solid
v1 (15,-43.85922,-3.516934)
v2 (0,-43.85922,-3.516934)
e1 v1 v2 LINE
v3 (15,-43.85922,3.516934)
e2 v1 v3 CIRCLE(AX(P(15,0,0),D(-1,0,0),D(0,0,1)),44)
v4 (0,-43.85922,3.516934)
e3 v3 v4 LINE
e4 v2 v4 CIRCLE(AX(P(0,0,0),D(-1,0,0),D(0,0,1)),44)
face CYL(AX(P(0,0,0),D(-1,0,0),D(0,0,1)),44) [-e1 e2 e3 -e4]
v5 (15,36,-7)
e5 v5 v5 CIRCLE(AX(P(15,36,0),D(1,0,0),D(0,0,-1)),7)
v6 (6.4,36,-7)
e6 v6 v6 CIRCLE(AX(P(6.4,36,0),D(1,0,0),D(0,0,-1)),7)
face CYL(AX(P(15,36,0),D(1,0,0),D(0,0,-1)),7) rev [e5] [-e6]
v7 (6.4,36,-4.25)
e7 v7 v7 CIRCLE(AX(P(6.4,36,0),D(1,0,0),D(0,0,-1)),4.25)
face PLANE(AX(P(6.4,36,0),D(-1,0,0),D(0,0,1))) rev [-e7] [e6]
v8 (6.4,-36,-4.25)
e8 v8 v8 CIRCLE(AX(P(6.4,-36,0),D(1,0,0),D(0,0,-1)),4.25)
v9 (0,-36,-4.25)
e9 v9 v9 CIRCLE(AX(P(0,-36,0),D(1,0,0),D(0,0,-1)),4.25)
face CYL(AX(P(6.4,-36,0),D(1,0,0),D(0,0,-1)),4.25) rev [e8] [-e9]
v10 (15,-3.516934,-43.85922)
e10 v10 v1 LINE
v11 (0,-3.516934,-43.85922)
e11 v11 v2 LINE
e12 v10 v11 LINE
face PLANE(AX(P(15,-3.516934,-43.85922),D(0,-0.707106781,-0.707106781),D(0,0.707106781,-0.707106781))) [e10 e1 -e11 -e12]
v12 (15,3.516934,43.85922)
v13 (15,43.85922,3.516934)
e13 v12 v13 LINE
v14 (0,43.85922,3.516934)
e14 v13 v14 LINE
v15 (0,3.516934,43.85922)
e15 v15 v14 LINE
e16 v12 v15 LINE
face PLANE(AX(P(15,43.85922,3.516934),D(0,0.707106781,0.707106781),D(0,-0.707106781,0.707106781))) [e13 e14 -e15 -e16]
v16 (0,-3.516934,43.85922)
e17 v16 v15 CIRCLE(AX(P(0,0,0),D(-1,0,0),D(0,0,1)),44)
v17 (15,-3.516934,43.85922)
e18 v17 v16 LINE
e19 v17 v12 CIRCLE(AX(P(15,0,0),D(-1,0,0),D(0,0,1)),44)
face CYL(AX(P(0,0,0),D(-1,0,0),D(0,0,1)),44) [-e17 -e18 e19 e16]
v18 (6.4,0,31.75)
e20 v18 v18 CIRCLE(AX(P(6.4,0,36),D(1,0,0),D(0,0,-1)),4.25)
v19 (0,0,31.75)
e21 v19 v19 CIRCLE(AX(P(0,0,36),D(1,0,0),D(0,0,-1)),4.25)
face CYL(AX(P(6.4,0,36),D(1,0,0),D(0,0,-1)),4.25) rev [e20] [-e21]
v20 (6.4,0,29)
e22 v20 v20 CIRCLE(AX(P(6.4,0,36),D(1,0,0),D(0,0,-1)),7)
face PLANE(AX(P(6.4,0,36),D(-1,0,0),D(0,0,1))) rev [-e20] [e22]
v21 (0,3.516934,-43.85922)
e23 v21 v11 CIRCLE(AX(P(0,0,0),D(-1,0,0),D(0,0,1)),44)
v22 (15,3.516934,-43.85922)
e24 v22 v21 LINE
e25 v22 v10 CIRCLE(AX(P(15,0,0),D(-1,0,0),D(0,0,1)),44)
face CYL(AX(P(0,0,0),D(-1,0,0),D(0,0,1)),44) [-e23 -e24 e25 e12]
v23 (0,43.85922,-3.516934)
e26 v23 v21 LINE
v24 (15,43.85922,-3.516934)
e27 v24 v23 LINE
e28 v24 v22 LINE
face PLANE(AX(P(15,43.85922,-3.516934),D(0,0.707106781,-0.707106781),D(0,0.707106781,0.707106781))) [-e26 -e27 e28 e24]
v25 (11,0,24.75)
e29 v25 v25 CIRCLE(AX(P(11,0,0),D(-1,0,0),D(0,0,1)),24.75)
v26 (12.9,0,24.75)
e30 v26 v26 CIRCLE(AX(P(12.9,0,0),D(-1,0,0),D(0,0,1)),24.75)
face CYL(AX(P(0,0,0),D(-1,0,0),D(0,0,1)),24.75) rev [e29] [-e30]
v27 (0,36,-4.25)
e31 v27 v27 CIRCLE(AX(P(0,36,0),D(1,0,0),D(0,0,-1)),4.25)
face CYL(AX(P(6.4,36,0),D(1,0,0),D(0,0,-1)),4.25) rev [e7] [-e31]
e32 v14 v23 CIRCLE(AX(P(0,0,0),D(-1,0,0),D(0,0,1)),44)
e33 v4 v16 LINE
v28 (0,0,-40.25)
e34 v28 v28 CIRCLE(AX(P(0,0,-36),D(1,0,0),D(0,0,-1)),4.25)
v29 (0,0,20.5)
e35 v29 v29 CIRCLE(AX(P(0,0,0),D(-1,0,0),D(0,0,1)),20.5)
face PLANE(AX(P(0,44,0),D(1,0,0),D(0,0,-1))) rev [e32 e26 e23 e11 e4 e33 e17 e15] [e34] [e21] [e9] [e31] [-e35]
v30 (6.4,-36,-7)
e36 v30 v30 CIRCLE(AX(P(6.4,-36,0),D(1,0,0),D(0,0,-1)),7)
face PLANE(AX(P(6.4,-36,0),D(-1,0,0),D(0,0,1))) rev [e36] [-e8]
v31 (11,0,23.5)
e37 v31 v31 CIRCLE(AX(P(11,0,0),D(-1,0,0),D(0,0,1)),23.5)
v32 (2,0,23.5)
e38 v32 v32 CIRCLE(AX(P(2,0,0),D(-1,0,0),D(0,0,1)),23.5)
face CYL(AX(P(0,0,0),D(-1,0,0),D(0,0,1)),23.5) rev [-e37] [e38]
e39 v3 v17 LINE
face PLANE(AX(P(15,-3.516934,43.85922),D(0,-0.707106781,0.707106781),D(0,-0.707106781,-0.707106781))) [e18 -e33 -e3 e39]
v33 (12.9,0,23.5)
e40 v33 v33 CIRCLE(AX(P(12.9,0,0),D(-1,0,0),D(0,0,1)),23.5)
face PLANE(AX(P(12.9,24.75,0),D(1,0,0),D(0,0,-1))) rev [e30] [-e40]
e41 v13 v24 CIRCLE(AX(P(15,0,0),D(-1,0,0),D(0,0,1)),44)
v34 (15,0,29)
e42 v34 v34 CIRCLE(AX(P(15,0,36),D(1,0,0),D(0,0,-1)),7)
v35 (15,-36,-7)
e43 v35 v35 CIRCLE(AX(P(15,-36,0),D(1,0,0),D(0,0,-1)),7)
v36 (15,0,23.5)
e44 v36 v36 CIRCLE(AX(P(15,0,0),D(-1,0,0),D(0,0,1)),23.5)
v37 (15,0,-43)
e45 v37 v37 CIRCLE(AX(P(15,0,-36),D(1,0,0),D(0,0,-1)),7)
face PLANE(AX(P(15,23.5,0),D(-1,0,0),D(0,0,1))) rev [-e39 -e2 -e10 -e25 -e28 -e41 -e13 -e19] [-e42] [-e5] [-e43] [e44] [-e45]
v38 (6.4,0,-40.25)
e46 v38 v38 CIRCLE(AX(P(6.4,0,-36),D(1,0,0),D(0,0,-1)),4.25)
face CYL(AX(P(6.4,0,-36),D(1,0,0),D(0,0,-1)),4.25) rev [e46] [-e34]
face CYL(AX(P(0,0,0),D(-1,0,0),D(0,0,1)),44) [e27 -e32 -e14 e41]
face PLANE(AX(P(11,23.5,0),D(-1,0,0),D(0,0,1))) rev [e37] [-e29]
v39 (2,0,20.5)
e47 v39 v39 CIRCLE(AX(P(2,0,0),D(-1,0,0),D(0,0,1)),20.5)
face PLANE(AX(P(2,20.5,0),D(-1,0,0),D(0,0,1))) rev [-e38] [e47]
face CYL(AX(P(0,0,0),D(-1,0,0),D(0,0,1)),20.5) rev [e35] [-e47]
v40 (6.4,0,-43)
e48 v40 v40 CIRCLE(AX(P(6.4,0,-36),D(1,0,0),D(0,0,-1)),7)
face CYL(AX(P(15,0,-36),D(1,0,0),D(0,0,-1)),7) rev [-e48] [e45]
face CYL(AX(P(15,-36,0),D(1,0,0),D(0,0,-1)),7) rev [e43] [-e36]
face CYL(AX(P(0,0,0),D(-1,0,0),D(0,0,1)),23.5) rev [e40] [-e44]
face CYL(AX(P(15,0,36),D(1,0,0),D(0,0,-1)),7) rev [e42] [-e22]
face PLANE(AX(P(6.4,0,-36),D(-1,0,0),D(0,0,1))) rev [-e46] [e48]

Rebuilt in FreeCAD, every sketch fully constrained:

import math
import FreeCAD as App
import Part
import Sketcher

V = App.Vector
Q = App.Units.Quantity


def add_polygon(sketch, points):
    """Adds a closed chain of lines whose ends are joined by coincident constraints."""
    first, n = sketch.GeometryCount, len(points)
    for a, b in zip(points, points[1:] + points[:1]):
        sketch.addGeometry(Part.LineSegment(App.Vector(*a, 0), App.Vector(*b, 0)), False)
    for i in range(n):
        sketch.addConstraint(Sketcher.Constraint("Coincident", first + i, 2, first + (i + 1) % n, 1))

doc = App.newDocument("Part")
body = doc.addObject("PartDesign::Body", "Body")

# Sketch on XY plane
sketch1 = body.newObject("Sketcher::SketchObject", "Sketch")
sketch1.AttachmentSupport = (doc.getObject("XY_Plane"), [""])
sketch1.MapMode = "FlatFace"
add_polygon(sketch1, [(15, 44), (0, 44), (0, 20.5), (2, 20.5), (2, 23.5), (11, 23.5), (11, 24.75), (12.9, 24.75), (12.9, 23.5), (15, 23.5)])  # lines 0-9
sketch1.addConstraint([
    Sketcher.Constraint("Horizontal", 0),
    Sketcher.Constraint("Vertical", 1),
    Sketcher.Constraint("Horizontal", 2),
    Sketcher.Constraint("Vertical", 3),
    Sketcher.Constraint("Horizontal", 4),
    Sketcher.Constraint("Vertical", 5),
    Sketcher.Constraint("Horizontal", 6),
    Sketcher.Constraint("Vertical", 7),
    Sketcher.Constraint("Horizontal", 8),
    Sketcher.Constraint("Vertical", 9),
    Sketcher.Constraint("PointOnObject", 0, 2, -2),
    Sketcher.Constraint("Horizontal", 4, 2, 7, 2),
    Sketcher.Constraint("DistanceX", 0, 2, 0, 1, Q("15 mm")),
    Sketcher.Constraint("DistanceX", 2, 1, 2, 2, Q("2 mm")),
    Sketcher.Constraint("DistanceX", 4, 1, 4, 2, Q("9 mm")),
    Sketcher.Constraint("DistanceY", 3, 1, 3, 2, Q("3 mm")),
    Sketcher.Constraint("DistanceX", 6, 1, 6, 2, Q("1.9 mm")),
    Sketcher.Constraint("DistanceY", 1, 2, 1, 1, Q("23.5 mm")),
    Sketcher.Constraint("DistanceY", -1, 1, 0, 2, Q("44 mm")),
    Sketcher.Constraint("DistanceY", 5, 1, 5, 2, Q("1.25 mm")),
])
revolution = body.newObject("PartDesign::Revolution", "Revolution")
revolution.Profile = sketch1
revolution.ReferenceAxis = (sketch1, ["H_Axis"])
revolution.Angle = 360

# Sketch on YZ plane
sketch2 = body.newObject("Sketcher::SketchObject", "Sketch001")
sketch2.AttachmentSupport = (doc.getObject("YZ_Plane"), [""])
sketch2.MapMode = "FlatFace"
sketch2.AttachmentOffset = App.Placement(V(0, 0, 15), App.Rotation())
sketch2.addGeometry([
    Part.Circle(V(36, 0, 0), V(0, 0, 1), 7),
    Part.Circle(V(0, -36, 0), V(0, 0, 1), 7),
    Part.Circle(V(-36, 0, 0), V(0, 0, 1), 7),
    Part.Circle(V(0, 36, 0), V(0, 0, 1), 7),
], False)
sketch2.addConstraint([
    Sketcher.Constraint("Equal", 0, 1),
    Sketcher.Constraint("Equal", 1, 2),
    Sketcher.Constraint("Equal", 2, 3),
    Sketcher.Constraint("Symmetric", 0, 3, 2, 3, -1, 1),
    Sketcher.Constraint("Symmetric", 1, 3, 3, 3, -1, 1),
    Sketcher.Constraint("PointOnObject", 0, 3, -1),
    Sketcher.Constraint("PointOnObject", 1, 3, -2),
    Sketcher.Constraint("Diameter", 0, Q("14 mm")),
    Sketcher.Constraint("DistanceX", -1, 1, 0, 3, Q("36 mm")),
    Sketcher.Constraint("DistanceY", 1, 3, -1, 1, Q("36 mm")),
])
doc.recompute()
hole = body.newObject("PartDesign::Hole", "Hole")
hole.Profile = sketch2
hole.ThreadType = "None"
hole.Diameter = 14
hole.DepthType = "Dimension"
hole.Depth = 8.6
hole.DrillPoint = "Flat"

# Sketch on YZ plane
sketch3 = body.newObject("Sketcher::SketchObject", "Sketch002")
sketch3.AttachmentSupport = (doc.getObject("YZ_Plane"), [""])
sketch3.MapMode = "FlatFace"
sketch3.AttachmentOffset = App.Placement(V(0, 0, 6.4), App.Rotation())
sketch3.addGeometry([
    Part.Circle(V(36, 0, 0), V(0, 0, 1), 4.25),
    Part.Circle(V(0, -36, 0), V(0, 0, 1), 4.25),
    Part.Circle(V(-36, 0, 0), V(0, 0, 1), 4.25),
    Part.Circle(V(0, 36, 0), V(0, 0, 1), 4.25),
], False)
sketch3.addConstraint([
    Sketcher.Constraint("Equal", 0, 1),
    Sketcher.Constraint("Equal", 1, 2),
    Sketcher.Constraint("Equal", 2, 3),
    Sketcher.Constraint("Symmetric", 0, 3, 2, 3, -1, 1),
    Sketcher.Constraint("Symmetric", 1, 3, 3, 3, -1, 1),
    Sketcher.Constraint("PointOnObject", 0, 3, -1),
    Sketcher.Constraint("PointOnObject", 1, 3, -2),
    Sketcher.Constraint("Diameter", 0, Q("8.5 mm")),
    Sketcher.Constraint("DistanceX", -1, 1, 0, 3, Q("36 mm")),
    Sketcher.Constraint("DistanceY", 1, 3, -1, 1, Q("36 mm")),
])
doc.recompute()
hole2 = body.newObject("PartDesign::Hole", "Hole001")
hole2.Profile = sketch3
hole2.ThreadType = "None"
hole2.Diameter = 8.5
hole2.DepthType = "ThroughAll"

# Sketch on YZ plane
sketch4 = body.newObject("Sketcher::SketchObject", "Sketch003")
sketch4.AttachmentSupport = (doc.getObject("YZ_Plane"), [""])
sketch4.MapMode = "FlatFace"
sketch4.addGeometry([
    Part.LineSegment(V(3.516934, 43.85922, 0), V(43.85922, 3.516934, 0)),  # 0
    Part.ArcOfCircle(Part.Circle(V(0, 0, 0), V(0, 0, 1), 44), math.radians(4.584561), math.radians(85.415439)),  # 1
    Part.LineSegment(V(43.85922, -3.516934, 0), V(3.516934, -43.85922, 0)),  # 2
    Part.ArcOfCircle(Part.Circle(V(0, 0, 0), V(0, 0, 1), 44), math.radians(-85.415439), math.radians(-4.584561)),  # 3
    Part.LineSegment(V(-3.516934, -43.85922, 0), V(-43.85922, -3.516934, 0)),  # 4
    Part.ArcOfCircle(Part.Circle(V(0, 0, 0), V(0, 0, 1), 44), math.radians(-175.415439), math.radians(-94.584561)),  # 5
    Part.LineSegment(V(-43.85922, 3.516934, 0), V(-3.516934, 43.85922, 0)),  # 6
    Part.ArcOfCircle(Part.Circle(V(0, 0, 0), V(0, 0, 1), 44), math.radians(94.584561), math.radians(175.415439)),  # 7
], False)
sketch4.addConstraint([
    Sketcher.Constraint("Coincident", 0, 1, 1, 2),
    Sketcher.Constraint("Coincident", 1, 1, 0, 2),
    Sketcher.Constraint("Coincident", 2, 1, 3, 2),
    Sketcher.Constraint("Coincident", 3, 1, 2, 2),
    Sketcher.Constraint("Coincident", 4, 1, 5, 2),
    Sketcher.Constraint("Coincident", 5, 1, 4, 2),
    Sketcher.Constraint("Coincident", 6, 1, 7, 2),
    Sketcher.Constraint("Coincident", 7, 1, 6, 2),
    Sketcher.Constraint("Coincident", 1, 3, -1, 1),
    Sketcher.Constraint("Coincident", 3, 3, -1, 1),
    Sketcher.Constraint("Coincident", 5, 3, -1, 1),
    Sketcher.Constraint("Coincident", 7, 3, -1, 1),
    Sketcher.Constraint("Equal", 1, 3),
    Sketcher.Constraint("Equal", 3, 5),
    Sketcher.Constraint("Equal", 5, 7),
    Sketcher.Constraint("Perpendicular", 0, 2),
    Sketcher.Constraint("Perpendicular", 2, 4),
    Sketcher.Constraint("Perpendicular", 4, 6),
    Sketcher.Constraint("Horizontal", 3, 1, 4, 1),
    Sketcher.Constraint("Horizontal", 2, 1, 5, 1),
    Sketcher.Constraint("Horizontal", 1, 1, 6, 1),
    Sketcher.Constraint("Vertical", 1, 1, 2, 1),
    Sketcher.Constraint("Radius", 1, Q("44 mm")),
    Sketcher.Constraint("DistanceY", -1, 1, 0, 1, Q("43.85922 mm")),
])
pocket1 = body.newObject("PartDesign::Pocket", "Pocket")
pocket1.Profile = sketch4
pocket1.Type = "ThroughAll"
pocket1.Reversed = True

doc.recompute()
